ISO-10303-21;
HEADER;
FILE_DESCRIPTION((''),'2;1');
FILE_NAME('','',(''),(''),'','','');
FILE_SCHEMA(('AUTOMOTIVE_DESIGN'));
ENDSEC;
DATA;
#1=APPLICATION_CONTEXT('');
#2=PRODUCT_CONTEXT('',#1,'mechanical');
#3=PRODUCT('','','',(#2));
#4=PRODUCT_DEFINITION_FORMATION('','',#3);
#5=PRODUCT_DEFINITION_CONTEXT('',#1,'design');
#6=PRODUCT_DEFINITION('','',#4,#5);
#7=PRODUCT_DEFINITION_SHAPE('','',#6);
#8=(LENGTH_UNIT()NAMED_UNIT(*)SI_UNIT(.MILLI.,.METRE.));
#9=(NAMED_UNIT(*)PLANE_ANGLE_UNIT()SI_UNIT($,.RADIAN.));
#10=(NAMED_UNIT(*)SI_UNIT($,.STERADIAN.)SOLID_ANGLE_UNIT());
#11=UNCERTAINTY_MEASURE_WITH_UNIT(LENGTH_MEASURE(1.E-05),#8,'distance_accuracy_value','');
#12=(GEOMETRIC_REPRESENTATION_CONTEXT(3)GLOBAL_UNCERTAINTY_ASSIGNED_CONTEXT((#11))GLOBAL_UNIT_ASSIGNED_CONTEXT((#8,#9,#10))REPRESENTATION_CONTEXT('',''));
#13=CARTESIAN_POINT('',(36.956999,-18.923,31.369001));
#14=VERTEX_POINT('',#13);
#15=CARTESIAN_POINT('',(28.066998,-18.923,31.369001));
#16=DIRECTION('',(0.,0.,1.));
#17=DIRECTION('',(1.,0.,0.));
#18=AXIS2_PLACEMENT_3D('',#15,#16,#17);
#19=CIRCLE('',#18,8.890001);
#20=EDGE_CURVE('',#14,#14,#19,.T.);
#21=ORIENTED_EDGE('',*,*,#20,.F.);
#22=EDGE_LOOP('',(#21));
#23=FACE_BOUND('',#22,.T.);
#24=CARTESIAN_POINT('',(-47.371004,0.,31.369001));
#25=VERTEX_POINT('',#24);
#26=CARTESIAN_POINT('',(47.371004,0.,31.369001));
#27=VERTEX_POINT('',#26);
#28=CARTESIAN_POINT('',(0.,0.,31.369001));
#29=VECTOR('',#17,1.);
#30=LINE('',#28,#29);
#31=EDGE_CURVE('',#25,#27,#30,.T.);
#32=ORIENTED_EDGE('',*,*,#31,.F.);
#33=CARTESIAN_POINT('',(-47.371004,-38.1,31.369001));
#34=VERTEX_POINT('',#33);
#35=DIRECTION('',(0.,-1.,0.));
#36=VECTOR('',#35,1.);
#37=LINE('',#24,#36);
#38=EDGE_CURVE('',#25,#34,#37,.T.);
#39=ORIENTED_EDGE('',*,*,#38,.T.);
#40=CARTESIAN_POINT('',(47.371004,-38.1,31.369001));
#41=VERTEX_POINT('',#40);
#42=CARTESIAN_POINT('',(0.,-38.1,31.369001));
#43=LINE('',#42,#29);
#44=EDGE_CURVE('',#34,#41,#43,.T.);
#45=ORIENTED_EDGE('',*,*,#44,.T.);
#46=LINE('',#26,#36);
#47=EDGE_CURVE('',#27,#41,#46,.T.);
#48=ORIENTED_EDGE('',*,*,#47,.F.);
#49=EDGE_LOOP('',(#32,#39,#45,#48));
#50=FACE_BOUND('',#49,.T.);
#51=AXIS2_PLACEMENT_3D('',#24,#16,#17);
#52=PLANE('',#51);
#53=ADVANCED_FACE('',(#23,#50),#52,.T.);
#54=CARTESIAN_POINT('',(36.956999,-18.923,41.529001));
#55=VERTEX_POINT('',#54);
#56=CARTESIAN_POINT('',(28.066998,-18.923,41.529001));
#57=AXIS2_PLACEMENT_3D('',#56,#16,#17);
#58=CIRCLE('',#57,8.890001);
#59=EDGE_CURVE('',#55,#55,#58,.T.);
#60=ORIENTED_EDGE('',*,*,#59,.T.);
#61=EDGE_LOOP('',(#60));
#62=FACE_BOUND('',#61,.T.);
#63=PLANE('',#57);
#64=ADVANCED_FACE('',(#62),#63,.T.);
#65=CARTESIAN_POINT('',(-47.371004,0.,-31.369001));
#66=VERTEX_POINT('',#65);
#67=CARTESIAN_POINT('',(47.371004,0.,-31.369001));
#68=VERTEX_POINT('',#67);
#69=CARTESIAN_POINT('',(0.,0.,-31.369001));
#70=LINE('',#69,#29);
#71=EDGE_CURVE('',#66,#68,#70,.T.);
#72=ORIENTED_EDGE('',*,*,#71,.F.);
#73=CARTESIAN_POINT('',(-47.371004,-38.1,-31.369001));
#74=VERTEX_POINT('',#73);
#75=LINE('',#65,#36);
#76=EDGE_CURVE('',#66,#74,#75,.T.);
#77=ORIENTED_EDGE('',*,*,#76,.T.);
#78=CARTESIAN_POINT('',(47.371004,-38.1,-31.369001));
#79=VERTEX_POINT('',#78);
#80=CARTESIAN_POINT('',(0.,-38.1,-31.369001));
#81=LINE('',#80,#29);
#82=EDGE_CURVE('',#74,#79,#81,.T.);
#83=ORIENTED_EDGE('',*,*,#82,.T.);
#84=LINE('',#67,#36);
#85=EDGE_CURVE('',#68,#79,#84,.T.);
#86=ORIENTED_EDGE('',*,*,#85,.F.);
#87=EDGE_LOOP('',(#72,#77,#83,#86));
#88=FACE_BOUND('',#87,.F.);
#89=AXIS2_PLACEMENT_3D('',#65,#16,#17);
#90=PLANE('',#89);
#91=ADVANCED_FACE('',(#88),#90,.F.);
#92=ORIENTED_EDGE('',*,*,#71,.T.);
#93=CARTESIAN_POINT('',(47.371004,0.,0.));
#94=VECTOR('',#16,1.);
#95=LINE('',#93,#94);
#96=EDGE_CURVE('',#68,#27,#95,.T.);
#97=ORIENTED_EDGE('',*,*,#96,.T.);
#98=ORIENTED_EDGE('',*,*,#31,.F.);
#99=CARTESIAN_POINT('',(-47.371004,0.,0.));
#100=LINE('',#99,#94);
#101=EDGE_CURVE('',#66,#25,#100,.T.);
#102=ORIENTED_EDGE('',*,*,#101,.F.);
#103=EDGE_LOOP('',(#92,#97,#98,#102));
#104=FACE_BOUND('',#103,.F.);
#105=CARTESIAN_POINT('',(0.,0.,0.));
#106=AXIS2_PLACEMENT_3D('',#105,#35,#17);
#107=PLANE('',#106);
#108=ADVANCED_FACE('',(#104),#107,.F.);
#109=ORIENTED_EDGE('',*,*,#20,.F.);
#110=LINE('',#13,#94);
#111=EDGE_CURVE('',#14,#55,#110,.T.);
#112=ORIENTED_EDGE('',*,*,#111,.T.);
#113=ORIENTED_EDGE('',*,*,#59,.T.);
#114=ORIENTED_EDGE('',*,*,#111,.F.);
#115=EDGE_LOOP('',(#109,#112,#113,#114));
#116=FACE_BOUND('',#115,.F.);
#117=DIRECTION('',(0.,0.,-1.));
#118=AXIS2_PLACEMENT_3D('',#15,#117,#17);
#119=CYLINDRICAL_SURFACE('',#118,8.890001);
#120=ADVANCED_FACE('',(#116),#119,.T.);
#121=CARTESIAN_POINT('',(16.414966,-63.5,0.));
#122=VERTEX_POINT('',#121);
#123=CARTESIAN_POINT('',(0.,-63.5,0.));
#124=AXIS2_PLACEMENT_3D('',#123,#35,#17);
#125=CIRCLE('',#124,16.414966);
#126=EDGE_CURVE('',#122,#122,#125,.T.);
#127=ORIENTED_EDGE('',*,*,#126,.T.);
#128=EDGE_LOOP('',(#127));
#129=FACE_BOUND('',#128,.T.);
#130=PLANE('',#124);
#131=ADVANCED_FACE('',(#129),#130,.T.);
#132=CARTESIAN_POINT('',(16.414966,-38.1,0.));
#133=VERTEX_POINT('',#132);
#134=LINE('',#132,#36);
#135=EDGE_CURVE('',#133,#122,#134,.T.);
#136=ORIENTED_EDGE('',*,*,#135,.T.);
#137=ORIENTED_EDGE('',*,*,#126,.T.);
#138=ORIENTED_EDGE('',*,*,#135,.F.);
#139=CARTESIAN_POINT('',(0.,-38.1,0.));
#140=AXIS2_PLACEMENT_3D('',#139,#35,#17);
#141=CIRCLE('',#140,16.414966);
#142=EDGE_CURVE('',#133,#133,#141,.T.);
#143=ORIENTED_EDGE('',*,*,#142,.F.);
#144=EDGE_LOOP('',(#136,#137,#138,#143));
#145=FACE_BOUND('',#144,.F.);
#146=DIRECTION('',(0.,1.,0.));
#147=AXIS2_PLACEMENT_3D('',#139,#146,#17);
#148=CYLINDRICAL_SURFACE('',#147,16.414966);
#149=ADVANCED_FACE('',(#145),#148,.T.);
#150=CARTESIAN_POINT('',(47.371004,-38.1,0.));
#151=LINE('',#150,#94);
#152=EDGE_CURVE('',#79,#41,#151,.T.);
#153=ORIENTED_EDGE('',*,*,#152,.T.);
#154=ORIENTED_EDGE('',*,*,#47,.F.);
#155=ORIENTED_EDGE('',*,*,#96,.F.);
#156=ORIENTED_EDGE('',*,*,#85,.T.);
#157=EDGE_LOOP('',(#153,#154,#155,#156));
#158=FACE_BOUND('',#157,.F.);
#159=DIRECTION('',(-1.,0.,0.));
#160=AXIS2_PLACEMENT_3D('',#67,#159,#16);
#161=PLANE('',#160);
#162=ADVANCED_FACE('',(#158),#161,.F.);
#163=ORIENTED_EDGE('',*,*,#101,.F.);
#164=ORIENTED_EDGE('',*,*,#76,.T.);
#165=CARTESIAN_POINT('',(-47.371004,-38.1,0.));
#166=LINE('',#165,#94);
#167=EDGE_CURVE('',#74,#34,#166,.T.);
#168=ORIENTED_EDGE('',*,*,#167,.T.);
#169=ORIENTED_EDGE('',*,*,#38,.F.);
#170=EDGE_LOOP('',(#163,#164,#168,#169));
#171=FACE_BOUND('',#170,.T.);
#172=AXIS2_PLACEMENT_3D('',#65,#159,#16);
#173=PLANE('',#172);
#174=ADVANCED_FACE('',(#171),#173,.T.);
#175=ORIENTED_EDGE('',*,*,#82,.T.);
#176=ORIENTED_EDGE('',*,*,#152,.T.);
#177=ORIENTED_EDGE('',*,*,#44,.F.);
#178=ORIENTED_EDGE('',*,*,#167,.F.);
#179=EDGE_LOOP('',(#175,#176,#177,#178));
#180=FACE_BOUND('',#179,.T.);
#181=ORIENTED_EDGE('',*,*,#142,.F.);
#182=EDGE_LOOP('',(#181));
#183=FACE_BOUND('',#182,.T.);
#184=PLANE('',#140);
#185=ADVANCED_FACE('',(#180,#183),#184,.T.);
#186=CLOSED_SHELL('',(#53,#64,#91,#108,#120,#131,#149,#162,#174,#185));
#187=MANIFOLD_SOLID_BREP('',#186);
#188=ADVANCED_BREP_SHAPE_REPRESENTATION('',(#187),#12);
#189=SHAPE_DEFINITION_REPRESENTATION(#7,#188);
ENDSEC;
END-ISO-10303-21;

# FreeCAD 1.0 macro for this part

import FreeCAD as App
import Part
import Sketcher

V = App.Vector
Q = App.Units.Quantity

doc = App.newDocument("Part")
body = doc.addObject("PartDesign::Body", "Body")

sketch1 = body.newObject("Sketcher::SketchObject", "Sketch")
sketch1.AttachmentSupport = (doc.getObject("XZ_Plane"), [""])
sketch1.MapMode = "FlatFace"
sketch1.addGeometry(Part.LineSegment(V(-47, 31, 0), V(-47, -31, 0)), False)
sketch1.addGeometry(Part.LineSegment(V(-47, -31, 0), V(47, -31, 0)), False)
sketch1.addGeometry(Part.LineSegment(V(47, -31, 0), V(47, 31, 0)), False)
sketch1.addGeometry(Part.LineSegment(V(47, 31, 0), V(-47, 31, 0)), False)
sketch1.addConstraint(Sketcher.Constraint("Coincident", 0, 2, 1, 1))
sketch1.addConstraint(Sketcher.Constraint("Coincident", 1, 2, 2, 1))
sketch1.addConstraint(Sketcher.Constraint("Coincident", 2, 2, 3, 1))
sketch1.addConstraint(Sketcher.Constraint("Coincident", 3, 2, 0, 1))
sketch1.addConstraint(Sketcher.Constraint("Vertical", 0))
sketch1.addConstraint(Sketcher.Constraint("Horizontal", 1))
sketch1.addConstraint(Sketcher.Constraint("Vertical", 2))
sketch1.addConstraint(Sketcher.Constraint("Horizontal", 3))
sketch1.addConstraint(Sketcher.Constraint("Symmetric", 0, 2, 2, 2, -1, 1))
sketch1.addConstraint(Sketcher.Constraint("DistanceY", 0, 2, 0, 1, Q("2.4700001 in")))
sketch1.addConstraint(Sketcher.Constraint("DistanceX", 0, 2, -1, 1, Q("1.8650002 in")))
pad1 = body.newObject("PartDesign::Pad", "Pad")
pad1.Profile = sketch1
pad1.Length = Q("1.5 in")

sketch2 = body.newObject("Sketcher::SketchObject", "Sketch001")
sketch2.AttachmentSupport = (doc.getObject("XZ_Plane"), [""])
sketch2.MapMode = "FlatFace"
sketch2.AttachmentOffset = App.Placement(V(0, 0, 1.5 * 25.4), App.Rotation())
sketch2.addGeometry(Part.Circle(V(0, 0, 0), V(0, 0, 1), 16), False)
sketch2.addConstraint(Sketcher.Constraint("Coincident", 0, 3, -1, 1))
sketch2.addConstraint(Sketcher.Constraint("Diameter", 0, Q("32.829932 mm")))
pad2 = body.newObject("PartDesign::Pad", "Pad001")
pad2.Profile = sketch2
pad2.Type = "TwoLengths"
pad2.Length = Q("1 in")
pad2.Length2 = Q("0.5 in")

sketch3 = body.newObject("Sketcher::SketchObject", "Sketch002")
sketch3.AttachmentSupport = (doc.getObject("XY_Plane"), [""])
sketch3.MapMode = "FlatFace"
sketch3.AttachmentOffset = App.Placement(V(0, 0, 1.235 * 25.4), App.Rotation())
sketch3.addGeometry(Part.Circle(V(28, -19, 0), V(0, 0, 1), 9), False)
sketch3.addConstraint(Sketcher.Constraint("Diameter", 0, Q("0.7000001 in")))
sketch3.addConstraint(Sketcher.Constraint("DistanceX", -1, 1, 0, 3, Q("1.1049999 in")))
sketch3.addConstraint(Sketcher.Constraint("DistanceY", 0, 3, -1, 1, Q("0.745 in")))
pad3 = body.newObject("PartDesign::Pad", "Pad002")
pad3.Profile = sketch3
pad3.Length = Q("0.4 in")

doc.recompute()
